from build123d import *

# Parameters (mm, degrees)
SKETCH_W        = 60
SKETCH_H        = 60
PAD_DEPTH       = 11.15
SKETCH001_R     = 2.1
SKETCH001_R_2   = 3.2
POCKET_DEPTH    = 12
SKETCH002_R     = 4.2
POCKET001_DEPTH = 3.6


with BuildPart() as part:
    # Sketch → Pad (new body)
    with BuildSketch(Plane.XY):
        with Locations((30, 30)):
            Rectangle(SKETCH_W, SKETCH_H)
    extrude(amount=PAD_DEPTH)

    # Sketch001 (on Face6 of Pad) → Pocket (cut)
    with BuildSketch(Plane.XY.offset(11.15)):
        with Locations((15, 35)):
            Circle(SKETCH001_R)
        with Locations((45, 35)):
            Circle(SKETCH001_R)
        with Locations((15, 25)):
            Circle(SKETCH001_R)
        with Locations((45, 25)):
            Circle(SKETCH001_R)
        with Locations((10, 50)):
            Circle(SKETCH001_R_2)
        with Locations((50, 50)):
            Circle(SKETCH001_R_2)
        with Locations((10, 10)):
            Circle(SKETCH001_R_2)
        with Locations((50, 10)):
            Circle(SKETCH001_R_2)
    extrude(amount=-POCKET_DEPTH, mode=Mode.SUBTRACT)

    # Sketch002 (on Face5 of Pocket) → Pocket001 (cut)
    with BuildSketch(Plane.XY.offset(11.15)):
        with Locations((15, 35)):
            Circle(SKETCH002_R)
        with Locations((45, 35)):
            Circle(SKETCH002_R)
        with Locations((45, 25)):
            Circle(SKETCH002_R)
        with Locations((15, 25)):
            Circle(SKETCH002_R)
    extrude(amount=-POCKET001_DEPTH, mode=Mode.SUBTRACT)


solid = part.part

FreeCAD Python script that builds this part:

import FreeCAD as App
import Part
import Sketcher

V = App.Vector

doc = App.newDocument("Part")
body = doc.addObject("PartDesign::Body", "Body")

# Sketch on XY plane
sketch1 = body.newObject("Sketcher::SketchObject", "Sketch")
sketch1.AttachmentSupport = (doc.getObject("XY_Plane"), [""])
sketch1.MapMode = "FlatFace"
sketch1.addGeometry([
    Part.LineSegment(V(0, 60, 0), V(0, 0, 0)),
    Part.LineSegment(V(0, 0, 0), V(60, 0, 0)),
    Part.LineSegment(V(60, 0, 0), V(60, 60, 0)),
    Part.LineSegment(V(60, 60, 0), V(0, 60, 0)),
], False)
sketch1.addConstraint([
    Sketcher.Constraint("Coincident", 0, 2, 1, 1),
    Sketcher.Constraint("Coincident", 1, 2, 2, 1),
    Sketcher.Constraint("Coincident", 2, 2, 3, 1),
    Sketcher.Constraint("Coincident", 3, 2, 0, 1),
    Sketcher.Constraint("Vertical", 0),
    Sketcher.Constraint("Horizontal", 1),
    Sketcher.Constraint("Vertical", 2),
    Sketcher.Constraint("Horizontal", 3),
    Sketcher.Constraint("Coincident", 0, 2, -1, 1),
    Sketcher.Constraint("Equal", 3, 0),
    Sketcher.Constraint("DistanceX", 1, 1, 1, 2, 60.0),
])
pad1 = body.newObject("PartDesign::Pad", "Pad")
pad1.Profile = sketch1
pad1.Length = 11.15

# Sketch on XY plane
sketch2 = body.newObject("Sketcher::SketchObject", "Sketch001")
sketch2.AttachmentSupport = (doc.getObject("XY_Plane"), [""])
sketch2.MapMode = "FlatFace"
sketch2.AttachmentOffset = App.Placement(V(0, 0, 11.15), App.Rotation())
sketch2.addGeometry([
    Part.Circle(V(15, 35, 0), V(0, 0, 1), 2.1),  # 0
    Part.Circle(V(45, 35, 0), V(0, 0, 1), 2.1),  # 1
    Part.Circle(V(15, 25, 0), V(0, 0, 1), 2.1),  # 2
    Part.Circle(V(45, 25, 0), V(0, 0, 1), 2.1),  # 3
    Part.Circle(V(10, 50, 0), V(0, 0, 1), 3.2),  # 4
    Part.Circle(V(50, 50, 0), V(0, 0, 1), 3.2),  # 5
    Part.Circle(V(10, 10, 0), V(0, 0, 1), 3.2),  # 6
    Part.Circle(V(50, 10, 0), V(0, 0, 1), 3.2),  # 7
], False)
sketch2.addConstraint([
    Sketcher.Constraint("Equal", 0, 1),
    Sketcher.Constraint("Equal", 1, 2),
    Sketcher.Constraint("Equal", 2, 3),
    Sketcher.Constraint("Equal", 4, 5),
    Sketcher.Constraint("Equal", 5, 6),
    Sketcher.Constraint("Equal", 6, 7),
    Sketcher.Constraint("Horizontal", 0, 3, 1, 3),
    Sketcher.Constraint("Horizontal", 2, 3, 3, 3),
    Sketcher.Constraint("Horizontal", 4, 3, 5, 3),
    Sketcher.Constraint("Horizontal", 6, 3, 7, 3),
    Sketcher.Constraint("Vertical", 0, 3, 2, 3),
    Sketcher.Constraint("Vertical", 1, 3, 3, 3),
    Sketcher.Constraint("Vertical", 4, 3, 6, 3),
    Sketcher.Constraint("Vertical", 5, 3, 7, 3),
    Sketcher.Constraint("Diameter", 0, 4.2),
    Sketcher.Constraint("Diameter", 4, 6.4),
    Sketcher.Constraint("DistanceX", -1, 1, 0, 3, 15.0),
    Sketcher.Constraint("DistanceY", -1, 1, 0, 3, 35.0),
    Sketcher.Constraint("DistanceX", -1, 1, 1, 3, 45.0),
    Sketcher.Constraint("DistanceY", -1, 1, 2, 3, 25.0),
    Sketcher.Constraint("DistanceX", -1, 1, 4, 3, 10.0),
    Sketcher.Constraint("DistanceY", -1, 1, 4, 3, 50.0),
    Sketcher.Constraint("DistanceX", -1, 1, 5, 3, 50.0),
    Sketcher.Constraint("DistanceY", -1, 1, 6, 3, 10.0),
])
pocket1 = body.newObject("PartDesign::Pocket", "Pocket")
pocket1.Profile = sketch2
pocket1.Length = 12

# Sketch on XY plane
sketch3 = body.newObject("Sketcher::SketchObject", "Sketch002")
sketch3.AttachmentSupport = (doc.getObject("XY_Plane"), [""])
sketch3.MapMode = "FlatFace"
sketch3.AttachmentOffset = App.Placement(V(0, 0, 11.15), App.Rotation())
sketch3.addGeometry([
    Part.Circle(V(15, 35, 0), V(0, 0, 1), 4.2),
    Part.Circle(V(45, 35, 0), V(0, 0, 1), 4.2),
    Part.Circle(V(45, 25, 0), V(0, 0, 1), 4.2),
    Part.Circle(V(15, 25, 0), V(0, 0, 1), 4.2),
], False)
sketch3.addConstraint([
    Sketcher.Constraint("Equal", 0, 1),
    Sketcher.Constraint("Equal", 1, 2),
    Sketcher.Constraint("Equal", 2, 3),
    Sketcher.Constraint("Horizontal", 0, 3, 1, 3),
    Sketcher.Constraint("Horizontal", 2, 3, 3, 3),
    Sketcher.Constraint("Vertical", 1, 3, 2, 3),
    Sketcher.Constraint("Vertical", 0, 3, 3, 3),
    Sketcher.Constraint("Diameter", 0, 8.4),
    Sketcher.Constraint("DistanceX", -1, 1, 0, 3, 15.0),
    Sketcher.Constraint("DistanceY", -1, 1, 0, 3, 35.0),
    Sketcher.Constraint("DistanceX", -1, 1, 1, 3, 45.0),
    Sketcher.Constraint("DistanceY", -1, 1, 2, 3, 25.0),
])
pocket2 = body.newObject("PartDesign::Pocket", "Pocket001")
pocket2.Profile = sketch3
pocket2.Length = 3.6

doc.recompute()
